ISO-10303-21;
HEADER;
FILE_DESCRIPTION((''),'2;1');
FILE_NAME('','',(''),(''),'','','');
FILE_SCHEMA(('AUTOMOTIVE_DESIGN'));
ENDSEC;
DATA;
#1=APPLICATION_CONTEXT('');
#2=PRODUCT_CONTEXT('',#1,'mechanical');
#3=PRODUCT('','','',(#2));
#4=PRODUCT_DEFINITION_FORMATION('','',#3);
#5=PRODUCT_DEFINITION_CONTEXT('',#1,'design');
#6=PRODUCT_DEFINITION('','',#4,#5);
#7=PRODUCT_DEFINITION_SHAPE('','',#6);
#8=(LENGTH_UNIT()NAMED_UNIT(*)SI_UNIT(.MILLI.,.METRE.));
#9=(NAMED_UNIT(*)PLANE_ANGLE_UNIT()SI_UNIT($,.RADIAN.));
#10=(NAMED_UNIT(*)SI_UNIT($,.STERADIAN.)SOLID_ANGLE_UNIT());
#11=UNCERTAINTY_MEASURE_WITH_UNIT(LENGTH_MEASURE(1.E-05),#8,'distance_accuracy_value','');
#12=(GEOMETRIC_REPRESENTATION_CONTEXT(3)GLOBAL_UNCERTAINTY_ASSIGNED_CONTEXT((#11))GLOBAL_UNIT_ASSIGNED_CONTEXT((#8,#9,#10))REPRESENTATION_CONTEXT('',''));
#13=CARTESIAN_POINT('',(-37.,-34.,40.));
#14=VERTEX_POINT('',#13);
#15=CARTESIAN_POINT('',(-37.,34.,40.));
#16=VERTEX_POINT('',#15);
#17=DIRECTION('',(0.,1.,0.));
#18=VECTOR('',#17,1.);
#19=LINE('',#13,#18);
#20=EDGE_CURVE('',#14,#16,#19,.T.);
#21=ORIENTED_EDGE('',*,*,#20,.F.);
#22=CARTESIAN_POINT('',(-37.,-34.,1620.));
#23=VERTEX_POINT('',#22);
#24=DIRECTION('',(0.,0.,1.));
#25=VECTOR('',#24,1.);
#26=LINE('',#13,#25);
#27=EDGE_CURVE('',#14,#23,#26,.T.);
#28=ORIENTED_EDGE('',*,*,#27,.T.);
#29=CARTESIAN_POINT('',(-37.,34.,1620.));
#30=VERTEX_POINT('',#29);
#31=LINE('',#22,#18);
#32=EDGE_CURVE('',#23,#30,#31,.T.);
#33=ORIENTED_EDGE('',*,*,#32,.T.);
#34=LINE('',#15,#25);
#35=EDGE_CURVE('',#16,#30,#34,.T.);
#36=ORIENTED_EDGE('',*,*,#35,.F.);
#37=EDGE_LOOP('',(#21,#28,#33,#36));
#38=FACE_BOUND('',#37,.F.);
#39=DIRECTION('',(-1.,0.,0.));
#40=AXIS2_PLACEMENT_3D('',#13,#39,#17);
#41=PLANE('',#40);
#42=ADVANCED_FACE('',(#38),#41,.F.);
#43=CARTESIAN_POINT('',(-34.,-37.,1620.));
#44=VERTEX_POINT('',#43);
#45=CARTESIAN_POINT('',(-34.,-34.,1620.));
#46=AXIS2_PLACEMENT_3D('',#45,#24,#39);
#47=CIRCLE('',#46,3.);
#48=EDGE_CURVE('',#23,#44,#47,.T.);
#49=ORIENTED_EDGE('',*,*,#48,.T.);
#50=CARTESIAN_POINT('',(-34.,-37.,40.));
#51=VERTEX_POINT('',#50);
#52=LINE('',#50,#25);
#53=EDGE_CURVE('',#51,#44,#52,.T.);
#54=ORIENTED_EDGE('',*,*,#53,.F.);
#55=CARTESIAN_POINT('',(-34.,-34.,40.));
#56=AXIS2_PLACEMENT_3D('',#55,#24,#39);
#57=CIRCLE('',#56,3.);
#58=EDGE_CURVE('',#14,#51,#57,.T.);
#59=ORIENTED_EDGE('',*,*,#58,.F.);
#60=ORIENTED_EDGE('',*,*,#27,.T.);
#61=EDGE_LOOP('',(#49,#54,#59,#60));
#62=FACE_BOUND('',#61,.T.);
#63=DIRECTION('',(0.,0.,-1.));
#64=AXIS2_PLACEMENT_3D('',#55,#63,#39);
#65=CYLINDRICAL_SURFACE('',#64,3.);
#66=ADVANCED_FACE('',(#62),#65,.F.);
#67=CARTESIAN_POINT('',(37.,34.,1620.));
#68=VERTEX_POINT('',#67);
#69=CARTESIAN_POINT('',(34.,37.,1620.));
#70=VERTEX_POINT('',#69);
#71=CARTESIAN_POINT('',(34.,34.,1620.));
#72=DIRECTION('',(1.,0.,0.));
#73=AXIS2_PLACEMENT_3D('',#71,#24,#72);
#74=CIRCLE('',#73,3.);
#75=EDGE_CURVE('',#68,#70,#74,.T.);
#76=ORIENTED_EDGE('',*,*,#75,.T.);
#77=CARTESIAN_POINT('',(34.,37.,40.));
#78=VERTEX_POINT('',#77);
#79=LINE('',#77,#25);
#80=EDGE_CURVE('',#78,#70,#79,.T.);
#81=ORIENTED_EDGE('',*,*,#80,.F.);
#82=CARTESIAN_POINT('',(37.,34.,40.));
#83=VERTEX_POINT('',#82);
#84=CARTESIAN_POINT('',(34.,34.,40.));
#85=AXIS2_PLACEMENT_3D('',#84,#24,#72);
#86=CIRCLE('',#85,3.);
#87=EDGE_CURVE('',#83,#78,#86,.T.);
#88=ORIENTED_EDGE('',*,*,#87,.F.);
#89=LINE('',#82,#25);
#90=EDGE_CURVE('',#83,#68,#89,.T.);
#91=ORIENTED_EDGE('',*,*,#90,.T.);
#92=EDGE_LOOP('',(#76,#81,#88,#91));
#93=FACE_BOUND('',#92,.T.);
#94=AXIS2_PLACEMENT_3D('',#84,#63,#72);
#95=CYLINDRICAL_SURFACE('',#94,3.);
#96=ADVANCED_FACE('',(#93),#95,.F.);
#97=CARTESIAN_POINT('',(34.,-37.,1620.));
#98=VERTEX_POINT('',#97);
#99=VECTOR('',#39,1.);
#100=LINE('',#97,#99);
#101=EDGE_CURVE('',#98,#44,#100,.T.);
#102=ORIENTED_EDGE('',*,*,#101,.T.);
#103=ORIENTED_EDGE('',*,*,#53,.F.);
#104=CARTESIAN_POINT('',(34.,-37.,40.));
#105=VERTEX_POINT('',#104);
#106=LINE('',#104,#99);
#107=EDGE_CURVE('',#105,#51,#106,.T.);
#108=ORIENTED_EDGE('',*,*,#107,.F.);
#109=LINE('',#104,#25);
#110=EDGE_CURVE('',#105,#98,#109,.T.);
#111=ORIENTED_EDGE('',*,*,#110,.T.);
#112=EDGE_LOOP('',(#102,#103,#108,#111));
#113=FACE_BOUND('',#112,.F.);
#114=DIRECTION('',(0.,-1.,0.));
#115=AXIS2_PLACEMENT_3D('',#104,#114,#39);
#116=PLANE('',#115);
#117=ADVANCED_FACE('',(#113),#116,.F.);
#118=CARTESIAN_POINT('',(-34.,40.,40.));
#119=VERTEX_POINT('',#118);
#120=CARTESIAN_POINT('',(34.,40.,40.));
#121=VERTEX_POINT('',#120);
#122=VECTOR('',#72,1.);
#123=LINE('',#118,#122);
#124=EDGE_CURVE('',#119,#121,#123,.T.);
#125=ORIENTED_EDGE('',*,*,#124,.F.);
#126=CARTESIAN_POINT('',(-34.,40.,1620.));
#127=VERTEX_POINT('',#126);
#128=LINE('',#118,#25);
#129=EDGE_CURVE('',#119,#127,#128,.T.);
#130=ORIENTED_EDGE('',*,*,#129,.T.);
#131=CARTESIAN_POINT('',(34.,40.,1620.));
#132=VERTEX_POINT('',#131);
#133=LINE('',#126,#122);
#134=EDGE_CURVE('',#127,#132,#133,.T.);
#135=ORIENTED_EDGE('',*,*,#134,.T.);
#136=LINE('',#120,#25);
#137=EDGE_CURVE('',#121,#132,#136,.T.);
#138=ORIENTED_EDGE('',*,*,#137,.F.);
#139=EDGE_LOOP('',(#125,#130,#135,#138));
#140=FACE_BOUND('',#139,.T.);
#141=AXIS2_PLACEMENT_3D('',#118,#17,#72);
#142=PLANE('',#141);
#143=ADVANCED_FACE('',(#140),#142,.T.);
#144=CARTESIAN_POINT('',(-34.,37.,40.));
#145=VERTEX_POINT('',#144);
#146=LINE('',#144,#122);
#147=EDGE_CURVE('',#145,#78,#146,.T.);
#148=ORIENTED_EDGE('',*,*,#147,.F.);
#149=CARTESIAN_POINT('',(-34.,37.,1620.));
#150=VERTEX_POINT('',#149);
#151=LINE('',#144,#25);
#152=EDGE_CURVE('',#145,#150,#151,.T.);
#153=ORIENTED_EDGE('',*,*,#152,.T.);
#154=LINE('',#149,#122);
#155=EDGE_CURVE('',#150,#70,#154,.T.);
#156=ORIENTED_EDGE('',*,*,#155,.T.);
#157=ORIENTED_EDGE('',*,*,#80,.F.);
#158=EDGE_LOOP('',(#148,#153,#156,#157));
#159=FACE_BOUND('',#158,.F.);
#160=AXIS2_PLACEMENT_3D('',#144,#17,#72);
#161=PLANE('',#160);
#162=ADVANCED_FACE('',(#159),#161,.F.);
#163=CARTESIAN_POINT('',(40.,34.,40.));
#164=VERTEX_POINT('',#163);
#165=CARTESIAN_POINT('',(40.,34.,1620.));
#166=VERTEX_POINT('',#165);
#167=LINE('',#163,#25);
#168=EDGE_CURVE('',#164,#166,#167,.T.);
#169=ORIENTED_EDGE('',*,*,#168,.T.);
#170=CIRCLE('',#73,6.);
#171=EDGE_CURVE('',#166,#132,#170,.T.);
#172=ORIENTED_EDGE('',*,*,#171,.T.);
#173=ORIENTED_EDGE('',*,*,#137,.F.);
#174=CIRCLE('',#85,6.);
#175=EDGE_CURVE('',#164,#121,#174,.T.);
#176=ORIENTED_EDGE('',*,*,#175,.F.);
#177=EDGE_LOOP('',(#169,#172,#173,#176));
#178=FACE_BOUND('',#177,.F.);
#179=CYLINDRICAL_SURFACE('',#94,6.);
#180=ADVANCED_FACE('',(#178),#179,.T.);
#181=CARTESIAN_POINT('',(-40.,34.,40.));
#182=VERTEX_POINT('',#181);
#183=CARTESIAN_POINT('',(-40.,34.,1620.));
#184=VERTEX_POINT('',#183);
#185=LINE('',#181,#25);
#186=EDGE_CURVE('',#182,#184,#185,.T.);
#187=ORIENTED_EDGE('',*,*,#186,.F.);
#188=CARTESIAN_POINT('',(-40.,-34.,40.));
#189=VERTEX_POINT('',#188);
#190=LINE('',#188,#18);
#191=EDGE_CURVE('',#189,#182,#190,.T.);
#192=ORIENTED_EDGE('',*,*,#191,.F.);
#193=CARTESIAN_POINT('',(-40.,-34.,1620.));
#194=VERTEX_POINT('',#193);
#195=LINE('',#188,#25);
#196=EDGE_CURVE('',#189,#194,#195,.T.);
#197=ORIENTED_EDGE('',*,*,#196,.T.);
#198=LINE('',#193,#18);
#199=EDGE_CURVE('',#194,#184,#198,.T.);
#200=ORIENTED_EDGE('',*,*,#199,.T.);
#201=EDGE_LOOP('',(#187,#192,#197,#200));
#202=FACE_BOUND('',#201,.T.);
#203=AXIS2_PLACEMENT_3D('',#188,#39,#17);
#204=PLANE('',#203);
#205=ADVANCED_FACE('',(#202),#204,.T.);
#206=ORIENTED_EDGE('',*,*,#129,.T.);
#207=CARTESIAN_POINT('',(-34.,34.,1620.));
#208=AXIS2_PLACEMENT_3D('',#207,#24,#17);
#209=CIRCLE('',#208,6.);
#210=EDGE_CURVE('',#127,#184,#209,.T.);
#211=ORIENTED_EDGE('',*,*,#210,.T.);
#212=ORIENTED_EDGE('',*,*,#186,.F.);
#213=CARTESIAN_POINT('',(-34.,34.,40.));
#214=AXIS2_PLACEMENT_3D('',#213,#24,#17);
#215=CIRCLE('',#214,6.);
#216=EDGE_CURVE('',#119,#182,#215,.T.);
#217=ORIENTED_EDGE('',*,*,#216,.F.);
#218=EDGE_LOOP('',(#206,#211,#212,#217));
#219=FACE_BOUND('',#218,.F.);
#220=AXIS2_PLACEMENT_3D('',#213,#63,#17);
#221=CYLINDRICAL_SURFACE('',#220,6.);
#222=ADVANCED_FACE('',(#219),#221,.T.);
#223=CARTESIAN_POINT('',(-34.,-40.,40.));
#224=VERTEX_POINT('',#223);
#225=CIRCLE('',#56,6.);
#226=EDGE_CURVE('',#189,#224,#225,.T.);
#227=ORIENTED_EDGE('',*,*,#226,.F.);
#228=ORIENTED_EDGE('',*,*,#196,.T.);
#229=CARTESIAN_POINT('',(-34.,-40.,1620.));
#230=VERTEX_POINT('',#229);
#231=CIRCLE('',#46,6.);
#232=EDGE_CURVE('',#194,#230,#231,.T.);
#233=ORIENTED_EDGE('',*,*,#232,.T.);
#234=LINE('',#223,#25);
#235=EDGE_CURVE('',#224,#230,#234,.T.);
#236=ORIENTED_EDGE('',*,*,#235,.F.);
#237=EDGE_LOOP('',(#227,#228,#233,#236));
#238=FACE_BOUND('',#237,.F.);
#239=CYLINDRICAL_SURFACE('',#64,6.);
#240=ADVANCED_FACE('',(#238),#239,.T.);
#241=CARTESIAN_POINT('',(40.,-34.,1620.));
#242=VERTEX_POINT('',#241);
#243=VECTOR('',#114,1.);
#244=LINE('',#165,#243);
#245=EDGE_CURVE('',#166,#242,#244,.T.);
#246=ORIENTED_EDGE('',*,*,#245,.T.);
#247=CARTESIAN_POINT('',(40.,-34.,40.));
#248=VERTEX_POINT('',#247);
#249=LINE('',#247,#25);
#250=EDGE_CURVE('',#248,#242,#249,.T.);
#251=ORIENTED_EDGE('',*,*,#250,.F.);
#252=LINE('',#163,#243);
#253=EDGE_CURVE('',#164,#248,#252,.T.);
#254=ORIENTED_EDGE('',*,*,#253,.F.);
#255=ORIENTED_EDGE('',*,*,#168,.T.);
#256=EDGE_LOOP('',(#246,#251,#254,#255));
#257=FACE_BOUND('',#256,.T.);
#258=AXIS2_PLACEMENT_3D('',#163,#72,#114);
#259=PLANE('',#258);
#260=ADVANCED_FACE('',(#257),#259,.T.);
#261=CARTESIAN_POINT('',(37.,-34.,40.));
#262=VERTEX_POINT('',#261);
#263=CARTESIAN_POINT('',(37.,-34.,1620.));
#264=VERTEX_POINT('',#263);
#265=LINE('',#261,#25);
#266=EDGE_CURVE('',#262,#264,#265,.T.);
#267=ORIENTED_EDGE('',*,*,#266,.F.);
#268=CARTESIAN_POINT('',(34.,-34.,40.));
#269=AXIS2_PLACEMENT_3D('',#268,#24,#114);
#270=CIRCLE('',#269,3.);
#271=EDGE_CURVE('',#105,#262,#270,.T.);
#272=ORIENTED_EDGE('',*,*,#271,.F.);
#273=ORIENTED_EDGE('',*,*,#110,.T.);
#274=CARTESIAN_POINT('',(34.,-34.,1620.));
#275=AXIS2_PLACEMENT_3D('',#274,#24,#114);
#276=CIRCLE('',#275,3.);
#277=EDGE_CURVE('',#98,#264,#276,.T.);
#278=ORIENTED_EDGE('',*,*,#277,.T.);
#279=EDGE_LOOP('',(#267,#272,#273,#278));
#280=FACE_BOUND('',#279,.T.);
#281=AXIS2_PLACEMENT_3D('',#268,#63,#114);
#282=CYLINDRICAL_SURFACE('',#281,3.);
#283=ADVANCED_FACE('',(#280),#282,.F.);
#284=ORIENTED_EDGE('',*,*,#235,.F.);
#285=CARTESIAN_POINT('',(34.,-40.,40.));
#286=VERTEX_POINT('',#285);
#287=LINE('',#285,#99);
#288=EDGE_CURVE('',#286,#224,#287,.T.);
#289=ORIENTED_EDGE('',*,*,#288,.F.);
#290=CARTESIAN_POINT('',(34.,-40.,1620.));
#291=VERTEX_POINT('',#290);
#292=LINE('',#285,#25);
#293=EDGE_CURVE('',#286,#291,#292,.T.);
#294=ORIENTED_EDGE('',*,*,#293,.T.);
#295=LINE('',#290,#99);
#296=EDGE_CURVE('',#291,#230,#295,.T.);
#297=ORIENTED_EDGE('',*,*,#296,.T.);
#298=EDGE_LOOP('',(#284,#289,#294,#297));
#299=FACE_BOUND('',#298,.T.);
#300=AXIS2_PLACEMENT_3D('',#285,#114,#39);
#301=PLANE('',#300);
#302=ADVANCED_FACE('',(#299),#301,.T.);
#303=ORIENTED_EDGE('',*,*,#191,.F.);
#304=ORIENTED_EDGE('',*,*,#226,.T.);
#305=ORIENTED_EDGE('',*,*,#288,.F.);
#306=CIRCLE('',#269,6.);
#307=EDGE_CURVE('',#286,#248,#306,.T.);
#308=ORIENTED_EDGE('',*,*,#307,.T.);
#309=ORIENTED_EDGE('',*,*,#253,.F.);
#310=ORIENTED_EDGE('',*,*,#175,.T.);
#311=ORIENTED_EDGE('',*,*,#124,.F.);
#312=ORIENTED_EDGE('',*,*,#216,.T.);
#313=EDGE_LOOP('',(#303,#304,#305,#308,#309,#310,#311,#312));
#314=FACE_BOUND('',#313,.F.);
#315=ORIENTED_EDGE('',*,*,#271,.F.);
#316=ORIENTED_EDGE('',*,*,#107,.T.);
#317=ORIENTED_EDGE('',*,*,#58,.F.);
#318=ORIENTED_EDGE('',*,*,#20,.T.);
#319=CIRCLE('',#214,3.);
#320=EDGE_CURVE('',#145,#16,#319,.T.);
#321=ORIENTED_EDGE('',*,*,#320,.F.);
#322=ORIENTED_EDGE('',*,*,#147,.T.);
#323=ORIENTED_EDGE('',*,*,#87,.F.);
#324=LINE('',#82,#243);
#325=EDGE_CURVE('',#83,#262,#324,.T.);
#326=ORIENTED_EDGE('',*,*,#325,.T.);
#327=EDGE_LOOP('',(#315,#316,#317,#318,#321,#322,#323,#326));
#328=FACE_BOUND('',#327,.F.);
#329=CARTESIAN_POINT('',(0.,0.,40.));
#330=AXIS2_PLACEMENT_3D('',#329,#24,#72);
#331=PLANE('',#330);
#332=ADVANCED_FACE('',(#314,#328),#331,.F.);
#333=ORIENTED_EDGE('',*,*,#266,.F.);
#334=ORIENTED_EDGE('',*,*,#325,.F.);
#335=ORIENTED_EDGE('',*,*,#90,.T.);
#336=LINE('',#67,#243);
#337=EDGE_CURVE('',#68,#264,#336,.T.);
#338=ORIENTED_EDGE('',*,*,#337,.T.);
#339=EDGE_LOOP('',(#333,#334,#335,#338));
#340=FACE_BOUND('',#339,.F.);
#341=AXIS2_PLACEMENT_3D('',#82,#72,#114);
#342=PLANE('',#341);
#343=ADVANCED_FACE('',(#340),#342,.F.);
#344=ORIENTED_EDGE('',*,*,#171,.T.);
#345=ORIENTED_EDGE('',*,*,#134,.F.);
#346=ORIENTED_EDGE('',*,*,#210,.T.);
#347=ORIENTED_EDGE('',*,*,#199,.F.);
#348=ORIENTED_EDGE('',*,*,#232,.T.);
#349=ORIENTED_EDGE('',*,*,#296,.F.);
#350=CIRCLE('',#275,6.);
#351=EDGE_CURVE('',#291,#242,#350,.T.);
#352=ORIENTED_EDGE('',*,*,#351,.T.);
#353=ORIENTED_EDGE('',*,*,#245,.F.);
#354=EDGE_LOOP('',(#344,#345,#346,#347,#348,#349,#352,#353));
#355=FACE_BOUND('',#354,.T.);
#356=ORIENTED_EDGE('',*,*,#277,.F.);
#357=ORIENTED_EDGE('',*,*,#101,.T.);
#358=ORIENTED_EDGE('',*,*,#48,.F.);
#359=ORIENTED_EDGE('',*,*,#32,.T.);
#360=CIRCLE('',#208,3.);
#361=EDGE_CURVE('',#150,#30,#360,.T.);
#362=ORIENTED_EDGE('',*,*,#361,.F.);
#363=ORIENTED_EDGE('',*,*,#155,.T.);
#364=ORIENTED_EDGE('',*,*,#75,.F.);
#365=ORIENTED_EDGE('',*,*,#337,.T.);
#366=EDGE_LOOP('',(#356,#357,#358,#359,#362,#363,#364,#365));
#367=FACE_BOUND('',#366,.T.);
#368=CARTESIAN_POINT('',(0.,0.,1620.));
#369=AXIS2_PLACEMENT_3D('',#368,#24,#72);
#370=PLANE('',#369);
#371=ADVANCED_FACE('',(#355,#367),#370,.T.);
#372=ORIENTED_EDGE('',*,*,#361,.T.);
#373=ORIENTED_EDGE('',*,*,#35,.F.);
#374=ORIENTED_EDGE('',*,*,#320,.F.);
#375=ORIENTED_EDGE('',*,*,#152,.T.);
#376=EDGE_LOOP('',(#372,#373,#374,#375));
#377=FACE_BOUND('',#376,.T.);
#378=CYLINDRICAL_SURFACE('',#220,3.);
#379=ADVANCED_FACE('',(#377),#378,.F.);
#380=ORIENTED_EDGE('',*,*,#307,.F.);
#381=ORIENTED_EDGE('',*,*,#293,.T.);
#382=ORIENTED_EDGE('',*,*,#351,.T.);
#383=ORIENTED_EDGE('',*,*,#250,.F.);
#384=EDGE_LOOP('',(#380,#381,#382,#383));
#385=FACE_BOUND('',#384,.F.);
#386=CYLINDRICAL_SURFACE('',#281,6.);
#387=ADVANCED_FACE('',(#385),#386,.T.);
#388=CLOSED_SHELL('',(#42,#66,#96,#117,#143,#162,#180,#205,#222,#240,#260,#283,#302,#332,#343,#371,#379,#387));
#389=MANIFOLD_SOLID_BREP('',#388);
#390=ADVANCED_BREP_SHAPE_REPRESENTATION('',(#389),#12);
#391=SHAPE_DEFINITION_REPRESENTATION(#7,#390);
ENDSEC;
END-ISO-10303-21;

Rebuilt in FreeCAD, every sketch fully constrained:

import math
import FreeCAD as App
import Part
import Sketcher

V = App.Vector
Q = App.Units.Quantity

doc = App.newDocument("Part")
params = doc.addObject("Spreadsheet::Sheet", "Params")
for row, (alias, value) in enumerate([
    ("sketch1_radius", "6 mm"),
    ("sketch1_radius2", "3 mm"),
    ("pad1_length", "1580 mm"),
], start=1):
    params.set(f"A{row}", alias)
    params.set(f"B{row}", "=" + value)
    params.setAlias(f"B{row}", alias)

body = doc.addObject("PartDesign::Body", "Body")

# Sketch on XY plane
sketch1 = body.newObject("Sketcher::SketchObject", "Sketch")
sketch1.AttachmentSupport = (doc.getObject("XY_Plane"), [""])
sketch1.MapMode = "FlatFace"
sketch1.AttachmentOffset = App.Placement(V(0, 0, 40), App.Rotation())
sketch1.addGeometry(Part.LineSegment(V(-40, 34, 0), V(-40, -34, 0)), False)
sketch1.addGeometry(Part.ArcOfCircle(Part.Circle(V(-34, -34, 0), V(0, 0, 1), 6), math.radians(180), math.radians(270)), False)
sketch1.addGeometry(Part.LineSegment(V(-34, -40, 0), V(34, -40, 0)), False)
sketch1.addGeometry(Part.ArcOfCircle(Part.Circle(V(34, -34, 0), V(0, 0, 1), 6), math.radians(-90), math.radians(0)), False)
sketch1.addGeometry(Part.LineSegment(V(40, -34, 0), V(40, 34, 0)), False)
sketch1.addGeometry(Part.ArcOfCircle(Part.Circle(V(34, 34, 0), V(0, 0, 1), 6), math.radians(0), math.radians(90)), False)
sketch1.addGeometry(Part.LineSegment(V(34, 40, 0), V(-34, 40, 0)), False)
sketch1.addGeometry(Part.ArcOfCircle(Part.Circle(V(-34, 34, 0), V(0, 0, 1), 6), math.radians(90), math.radians(180)), False)
sketch1.addGeometry(Part.ArcOfCircle(Part.Circle(V(-34, 34, 0), V(0, 0, 1), 3), math.radians(90), math.radians(180)), False)
sketch1.addGeometry(Part.LineSegment(V(-34, 37, 0), V(34, 37, 0)), False)
sketch1.addGeometry(Part.ArcOfCircle(Part.Circle(V(34, 34, 0), V(0, 0, 1), 3), math.radians(0), math.radians(90)), False)
sketch1.addGeometry(Part.LineSegment(V(37, 34, 0), V(37, -34, 0)), False)
sketch1.addGeometry(Part.ArcOfCircle(Part.Circle(V(34, -34, 0), V(0, 0, 1), 3), math.radians(-90), math.radians(0)), False)
sketch1.addGeometry(Part.LineSegment(V(34, -37, 0), V(-34, -37, 0)), False)
sketch1.addGeometry(Part.ArcOfCircle(Part.Circle(V(-34, -34, 0), V(0, 0, 1), 3), math.radians(180), math.radians(270)), False)
sketch1.addGeometry(Part.LineSegment(V(-37, -34, 0), V(-37, 34, 0)), False)
sketch1.addConstraint(Sketcher.Constraint("Tangent", 0, 2, 1, 1))
sketch1.addConstraint(Sketcher.Constraint("Tangent", 1, 2, 2, 1))
sketch1.addConstraint(Sketcher.Constraint("Tangent", 2, 2, 3, 1))
sketch1.addConstraint(Sketcher.Constraint("Tangent", 3, 2, 4, 1))
sketch1.addConstraint(Sketcher.Constraint("Tangent", 4, 2, 5, 1))
sketch1.addConstraint(Sketcher.Constraint("Tangent", 5, 2, 6, 1))
sketch1.addConstraint(Sketcher.Constraint("Tangent", 6, 2, 7, 1))
sketch1.addConstraint(Sketcher.Constraint("Tangent", 7, 2, 0, 1))
sketch1.addConstraint(Sketcher.Constraint("Tangent", 8, 1, 9, 1))
sketch1.addConstraint(Sketcher.Constraint("Tangent", 9, 2, 10, 2))
sketch1.addConstraint(Sketcher.Constraint("Tangent", 10, 1, 11, 1))
sketch1.addConstraint(Sketcher.Constraint("Tangent", 11, 2, 12, 2))
sketch1.addConstraint(Sketcher.Constraint("Tangent", 12, 1, 13, 1))
sketch1.addConstraint(Sketcher.Constraint("Tangent", 13, 2, 14, 2))
sketch1.addConstraint(Sketcher.Constraint("Tangent", 14, 1, 15, 1))
sketch1.addConstraint(Sketcher.Constraint("Tangent", 15, 2, 8, 2))
sketch1.addConstraint(Sketcher.Constraint("Vertical", 0))
sketch1.addConstraint(Sketcher.Constraint("Horizontal", 2))
sketch1.addConstraint(Sketcher.Constraint("Vertical", 4))
sketch1.addConstraint(Sketcher.Constraint("Horizontal", 6))
sketch1.addConstraint(Sketcher.Constraint("Horizontal", 9))
sketch1.addConstraint(Sketcher.Constraint("Vertical", 11))
sketch1.addConstraint(Sketcher.Constraint("Horizontal", 13))
sketch1.addConstraint(Sketcher.Constraint("Vertical", 15))
sketch1.addConstraint(Sketcher.Constraint("Coincident", 8, 3, 7, 3))
sketch1.addConstraint(Sketcher.Constraint("Coincident", 10, 3, 5, 3))
sketch1.addConstraint(Sketcher.Constraint("Coincident", 12, 3, 3, 3))
sketch1.addConstraint(Sketcher.Constraint("Equal", 1, 3))
sketch1.addConstraint(Sketcher.Constraint("Equal", 3, 5))
sketch1.addConstraint(Sketcher.Constraint("Equal", 5, 7))
sketch1.addConstraint(Sketcher.Constraint("Equal", 12, 14))
sketch1.addConstraint(Sketcher.Constraint("Symmetric", 1, 3, 5, 3, -1, 1))
sketch1.addConstraint(Sketcher.Constraint("Equal", 13, 0))
sketch1.addConstraint(Sketcher.Constraint("Radius", 1, Q("6 mm")))
sketch1.addConstraint(Sketcher.Constraint("Radius", 8, Q("3 mm")))
sketch1.addConstraint(Sketcher.Constraint("DistanceX", 0, 2, -1, 1, Q("40 mm")))
sketch1.setExpression("Constraints[33]", "Params.sketch1_radius")
sketch1.setExpression("Constraints[34]", "Params.sketch1_radius2")
pad1 = body.newObject("PartDesign::Pad", "Pad")
pad1.Profile = sketch1
pad1.setExpression("Length", "Params.pad1_length")

doc.recompute()
